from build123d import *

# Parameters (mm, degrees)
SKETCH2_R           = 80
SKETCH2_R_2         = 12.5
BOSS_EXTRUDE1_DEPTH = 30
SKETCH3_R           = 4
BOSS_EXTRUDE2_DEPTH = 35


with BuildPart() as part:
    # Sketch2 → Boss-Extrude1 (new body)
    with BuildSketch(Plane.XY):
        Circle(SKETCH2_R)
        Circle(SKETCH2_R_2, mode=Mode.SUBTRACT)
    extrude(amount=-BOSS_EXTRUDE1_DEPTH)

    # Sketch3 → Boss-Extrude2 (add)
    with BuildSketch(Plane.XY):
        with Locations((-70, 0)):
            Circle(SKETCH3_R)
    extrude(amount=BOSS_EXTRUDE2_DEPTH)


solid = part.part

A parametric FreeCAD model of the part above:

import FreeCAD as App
import Part
import Sketcher
from FreeCAD import Vector
Q = App.Units.Quantity

doc = App.newDocument("Part")
params = doc.addObject("Spreadsheet::Sheet", "Params")
for row, (alias, value) in enumerate([
    ("sketch1_diameter", "160 mm"),
    ("sketch1_diameter2", "25 mm"),
    ("pad1_length", "30 mm"),
    ("sketch2_diameter", "8 mm"),
    ("pad2_length", "35 mm"),
], start=1):
    params.set(f"A{row}", alias)
    params.set(f"B{row}", "=" + value)
    params.setAlias(f"B{row}", alias)

body = doc.addObject("PartDesign::Body", "Body")

sketch1 = body.newObject("Sketcher::SketchObject", "Sketch")
sketch1.AttachmentSupport = (doc.getObject("XY_Plane"), [""])
sketch1.MapMode = "FlatFace"
sketch1.addGeometry(Part.Circle(Vector(0, 0, 0), Vector(0, 0, 1), 80), False)
sketch1.addGeometry(Part.Circle(Vector(0, 0, 0), Vector(0, 0, 1), 12), False)
sketch1.addConstraint(Sketcher.Constraint("Coincident", 0, 3, -1, 1))
sketch1.addConstraint(Sketcher.Constraint("Coincident", 1, 3, -1, 1))
sketch1.addConstraint(Sketcher.Constraint("Diameter", 0, Q("160 mm")))
sketch1.addConstraint(Sketcher.Constraint("Diameter", 1, Q("25 mm")))
sketch1.setExpression("Constraints[2]", "Params.sketch1_diameter")
sketch1.setExpression("Constraints[3]", "Params.sketch1_diameter2")
pad1 = body.newObject("PartDesign::Pad", "Pad")
pad1.Profile = sketch1
pad1.setExpression("Length", "Params.pad1_length")
pad1.Reversed = True

sketch2 = body.newObject("Sketcher::SketchObject", "Sketch001")
sketch2.AttachmentSupport = (doc.getObject("XY_Plane"), [""])
sketch2.MapMode = "FlatFace"
sketch2.addGeometry(Part.Circle(Vector(-70, 0, 0), Vector(0, 0, 1), 4), False)
sketch2.addConstraint(Sketcher.Constraint("PointOnObject", 0, 3, -1))
sketch2.addConstraint(Sketcher.Constraint("Diameter", 0, Q("8 mm")))
sketch2.addConstraint(Sketcher.Constraint("DistanceX", 0, 3, -1, 1, Q("70 mm")))
sketch2.setExpression("Constraints[1]", "Params.sketch2_diameter")
pad2 = body.newObject("PartDesign::Pad", "Pad001")
pad2.Profile = sketch2
pad2.setExpression("Length", "Params.pad2_length")

doc.recompute()
